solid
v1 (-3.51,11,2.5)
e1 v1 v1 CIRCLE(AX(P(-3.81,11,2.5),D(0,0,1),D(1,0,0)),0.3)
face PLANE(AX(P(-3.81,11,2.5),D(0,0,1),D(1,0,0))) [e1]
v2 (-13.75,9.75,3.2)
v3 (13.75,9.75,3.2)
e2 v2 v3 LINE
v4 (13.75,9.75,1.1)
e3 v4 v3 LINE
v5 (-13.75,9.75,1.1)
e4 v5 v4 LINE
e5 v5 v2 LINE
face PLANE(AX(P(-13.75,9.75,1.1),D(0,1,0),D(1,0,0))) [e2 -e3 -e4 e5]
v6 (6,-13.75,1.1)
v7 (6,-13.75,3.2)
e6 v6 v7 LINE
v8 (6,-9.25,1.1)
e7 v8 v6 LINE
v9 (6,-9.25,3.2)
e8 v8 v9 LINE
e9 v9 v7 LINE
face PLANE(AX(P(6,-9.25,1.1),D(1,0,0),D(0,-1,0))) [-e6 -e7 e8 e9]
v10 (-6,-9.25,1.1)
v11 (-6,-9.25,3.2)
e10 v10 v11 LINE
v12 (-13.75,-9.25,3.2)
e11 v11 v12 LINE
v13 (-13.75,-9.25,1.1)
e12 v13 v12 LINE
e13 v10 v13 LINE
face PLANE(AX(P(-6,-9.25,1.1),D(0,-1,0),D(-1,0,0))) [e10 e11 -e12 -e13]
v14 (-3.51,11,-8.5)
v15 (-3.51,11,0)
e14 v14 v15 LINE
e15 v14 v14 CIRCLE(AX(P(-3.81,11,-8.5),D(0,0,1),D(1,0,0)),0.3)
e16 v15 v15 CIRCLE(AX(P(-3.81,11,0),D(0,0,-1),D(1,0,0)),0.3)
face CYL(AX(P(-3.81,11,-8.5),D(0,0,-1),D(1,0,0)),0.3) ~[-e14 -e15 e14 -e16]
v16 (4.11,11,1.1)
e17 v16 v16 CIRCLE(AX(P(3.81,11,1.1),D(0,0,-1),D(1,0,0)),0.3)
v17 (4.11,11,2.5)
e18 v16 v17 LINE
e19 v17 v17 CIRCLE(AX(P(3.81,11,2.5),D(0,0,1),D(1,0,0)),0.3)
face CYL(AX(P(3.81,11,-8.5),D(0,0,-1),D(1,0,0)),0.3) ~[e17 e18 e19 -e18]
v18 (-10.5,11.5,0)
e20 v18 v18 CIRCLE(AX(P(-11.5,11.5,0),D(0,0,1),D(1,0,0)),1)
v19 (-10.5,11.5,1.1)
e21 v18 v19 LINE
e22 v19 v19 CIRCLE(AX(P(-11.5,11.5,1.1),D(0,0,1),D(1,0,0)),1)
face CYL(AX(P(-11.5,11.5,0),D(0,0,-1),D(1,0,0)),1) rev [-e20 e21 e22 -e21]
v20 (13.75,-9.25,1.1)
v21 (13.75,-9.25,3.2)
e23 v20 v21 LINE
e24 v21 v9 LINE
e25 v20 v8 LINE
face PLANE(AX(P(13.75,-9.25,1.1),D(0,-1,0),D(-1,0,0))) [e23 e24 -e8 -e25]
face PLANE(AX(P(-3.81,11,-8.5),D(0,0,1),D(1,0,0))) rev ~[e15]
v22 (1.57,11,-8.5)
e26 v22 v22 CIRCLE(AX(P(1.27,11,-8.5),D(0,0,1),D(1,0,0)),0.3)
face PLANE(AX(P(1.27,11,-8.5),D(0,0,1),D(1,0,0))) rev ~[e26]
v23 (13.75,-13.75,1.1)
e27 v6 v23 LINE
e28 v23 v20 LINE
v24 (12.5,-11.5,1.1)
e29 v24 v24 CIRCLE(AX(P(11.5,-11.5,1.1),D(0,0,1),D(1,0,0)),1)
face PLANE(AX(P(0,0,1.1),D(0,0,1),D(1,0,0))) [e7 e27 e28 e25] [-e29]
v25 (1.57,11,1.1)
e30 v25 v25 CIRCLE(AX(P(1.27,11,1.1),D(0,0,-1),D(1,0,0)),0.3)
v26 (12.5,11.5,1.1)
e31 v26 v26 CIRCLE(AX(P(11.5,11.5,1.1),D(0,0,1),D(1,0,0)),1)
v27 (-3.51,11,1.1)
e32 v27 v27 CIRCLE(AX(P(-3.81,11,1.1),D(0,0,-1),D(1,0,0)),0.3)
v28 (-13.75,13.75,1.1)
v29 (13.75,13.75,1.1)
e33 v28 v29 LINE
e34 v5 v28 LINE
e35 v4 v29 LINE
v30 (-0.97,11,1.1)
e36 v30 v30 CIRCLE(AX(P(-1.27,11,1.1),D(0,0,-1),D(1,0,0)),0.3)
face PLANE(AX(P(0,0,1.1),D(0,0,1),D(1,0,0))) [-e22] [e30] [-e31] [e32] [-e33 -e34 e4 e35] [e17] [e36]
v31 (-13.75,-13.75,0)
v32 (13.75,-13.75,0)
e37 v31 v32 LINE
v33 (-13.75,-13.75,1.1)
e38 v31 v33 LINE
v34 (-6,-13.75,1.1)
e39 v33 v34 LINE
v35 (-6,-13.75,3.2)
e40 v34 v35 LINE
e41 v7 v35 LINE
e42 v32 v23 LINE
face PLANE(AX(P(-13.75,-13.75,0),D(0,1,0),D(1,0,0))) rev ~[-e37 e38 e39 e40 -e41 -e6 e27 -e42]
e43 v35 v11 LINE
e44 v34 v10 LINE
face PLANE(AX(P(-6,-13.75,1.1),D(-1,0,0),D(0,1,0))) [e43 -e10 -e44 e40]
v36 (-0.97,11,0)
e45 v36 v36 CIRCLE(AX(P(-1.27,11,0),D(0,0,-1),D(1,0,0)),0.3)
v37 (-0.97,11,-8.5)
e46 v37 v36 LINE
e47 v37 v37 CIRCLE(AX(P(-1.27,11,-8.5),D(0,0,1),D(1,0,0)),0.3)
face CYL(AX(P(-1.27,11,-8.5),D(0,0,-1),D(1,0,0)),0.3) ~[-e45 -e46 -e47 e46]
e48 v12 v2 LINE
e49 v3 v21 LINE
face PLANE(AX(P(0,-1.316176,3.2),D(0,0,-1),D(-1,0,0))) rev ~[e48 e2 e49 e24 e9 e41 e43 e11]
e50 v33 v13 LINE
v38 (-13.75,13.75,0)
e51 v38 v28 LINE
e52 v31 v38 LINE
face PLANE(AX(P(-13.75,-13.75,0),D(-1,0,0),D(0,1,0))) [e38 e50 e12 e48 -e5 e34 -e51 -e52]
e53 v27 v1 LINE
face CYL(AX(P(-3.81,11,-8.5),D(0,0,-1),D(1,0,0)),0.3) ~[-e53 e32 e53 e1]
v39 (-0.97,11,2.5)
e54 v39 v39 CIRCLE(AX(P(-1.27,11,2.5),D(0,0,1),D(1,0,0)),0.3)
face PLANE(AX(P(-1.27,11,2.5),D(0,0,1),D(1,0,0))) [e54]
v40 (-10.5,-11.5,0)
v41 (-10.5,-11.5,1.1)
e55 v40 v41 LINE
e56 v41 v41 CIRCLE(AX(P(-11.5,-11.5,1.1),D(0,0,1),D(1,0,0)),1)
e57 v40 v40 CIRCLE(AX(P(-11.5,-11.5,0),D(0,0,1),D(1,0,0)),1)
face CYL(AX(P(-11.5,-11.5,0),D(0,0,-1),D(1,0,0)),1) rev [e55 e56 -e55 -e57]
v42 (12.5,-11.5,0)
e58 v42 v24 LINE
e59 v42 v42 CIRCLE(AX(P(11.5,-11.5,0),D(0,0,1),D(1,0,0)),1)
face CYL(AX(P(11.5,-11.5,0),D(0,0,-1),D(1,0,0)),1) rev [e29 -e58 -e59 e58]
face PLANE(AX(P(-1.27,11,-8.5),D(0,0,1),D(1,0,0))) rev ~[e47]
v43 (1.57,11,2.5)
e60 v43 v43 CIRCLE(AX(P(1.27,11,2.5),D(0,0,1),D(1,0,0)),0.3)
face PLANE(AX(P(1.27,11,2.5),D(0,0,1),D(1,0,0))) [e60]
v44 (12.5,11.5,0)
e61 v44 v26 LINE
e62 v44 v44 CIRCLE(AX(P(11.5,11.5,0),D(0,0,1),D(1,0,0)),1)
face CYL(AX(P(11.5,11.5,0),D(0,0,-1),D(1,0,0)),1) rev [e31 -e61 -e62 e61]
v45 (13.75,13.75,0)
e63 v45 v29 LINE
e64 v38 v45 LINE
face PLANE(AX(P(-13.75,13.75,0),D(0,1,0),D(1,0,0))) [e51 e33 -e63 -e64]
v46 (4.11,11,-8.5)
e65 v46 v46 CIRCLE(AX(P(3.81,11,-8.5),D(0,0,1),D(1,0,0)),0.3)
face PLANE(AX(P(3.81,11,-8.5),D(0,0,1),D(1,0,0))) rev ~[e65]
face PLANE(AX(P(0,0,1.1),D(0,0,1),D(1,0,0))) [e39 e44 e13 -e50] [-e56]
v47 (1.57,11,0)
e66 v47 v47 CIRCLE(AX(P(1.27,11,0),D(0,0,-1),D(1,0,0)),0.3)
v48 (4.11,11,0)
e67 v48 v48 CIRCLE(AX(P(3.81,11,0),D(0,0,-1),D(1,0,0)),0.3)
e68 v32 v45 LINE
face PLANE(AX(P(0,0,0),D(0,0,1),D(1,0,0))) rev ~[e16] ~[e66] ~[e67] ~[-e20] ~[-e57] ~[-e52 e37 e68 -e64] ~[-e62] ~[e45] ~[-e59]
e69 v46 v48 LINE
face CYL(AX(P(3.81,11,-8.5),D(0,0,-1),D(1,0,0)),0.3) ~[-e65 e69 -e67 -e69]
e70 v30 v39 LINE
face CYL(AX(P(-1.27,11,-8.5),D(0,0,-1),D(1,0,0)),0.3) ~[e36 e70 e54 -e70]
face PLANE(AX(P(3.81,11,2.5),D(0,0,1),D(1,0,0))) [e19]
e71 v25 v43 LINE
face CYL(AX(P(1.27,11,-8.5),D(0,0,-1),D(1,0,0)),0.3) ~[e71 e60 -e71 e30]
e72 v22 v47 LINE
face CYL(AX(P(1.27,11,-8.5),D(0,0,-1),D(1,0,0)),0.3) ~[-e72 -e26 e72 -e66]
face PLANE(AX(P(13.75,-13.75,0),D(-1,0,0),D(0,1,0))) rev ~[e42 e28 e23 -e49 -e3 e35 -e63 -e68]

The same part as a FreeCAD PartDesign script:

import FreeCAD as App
import Part
import Sketcher
Q = App.Units.Quantity

doc = App.newDocument("Part")
body = doc.addObject("PartDesign::Body", "Body")

sketch1 = body.newObject("Sketcher::SketchObject", "Sketch")
sketch1.AttachmentSupport = (doc.getObject("XY_Plane"), [""])
sketch1.MapMode = "FlatFace"
sketch1.AttachmentOffset = App.Placement(App.Vector(0, 0, -8.5), App.Rotation())
sketch1.addGeometry(Part.Circle(App.Vector(-3.81, 11, 0), App.Vector(0, 0, 1), 0.3), False)
sketch1.addConstraint([
    Sketcher.Constraint("Diameter", 0, Q("0.6 mm")),
    Sketcher.Constraint("DistanceY", -1, 1, 0, 3, Q("11 mm")),
    Sketcher.Constraint("DistanceX", 0, 3, -1, 1, Q("3.81 mm")),
])
pad1 = body.newObject("PartDesign::Pad", "Pad")
pad1.Profile = sketch1
pad1.Length = 11
body2 = doc.addObject("PartDesign::Body", "Body001")

sketch2 = body2.newObject("Sketcher::SketchObject", "Sketch001")
sketch2.AttachmentSupport = (doc.getObject("XY_Plane001"), [""])
sketch2.MapMode = "FlatFace"
sketch2.AttachmentOffset = App.Placement(App.Vector(0, 0, -8.5), App.Rotation())
sketch2.addGeometry(Part.Circle(App.Vector(-1.27, 11, 0), App.Vector(0, 0, 1), 0.3), False)
sketch2.addConstraint([
    Sketcher.Constraint("Diameter", 0, Q("0.6 mm")),
    Sketcher.Constraint("DistanceY", -1, 1, 0, 3, Q("11 mm")),
    Sketcher.Constraint("DistanceX", 0, 3, -1, 1, Q("1.27 mm")),
])
pad2 = body2.newObject("PartDesign::Pad", "Pad001")
pad2.Profile = sketch2
pad2.Length = 11
body3 = doc.addObject("PartDesign::Body", "Body002")

sketch3 = body3.newObject("Sketcher::SketchObject", "Sketch002")
sketch3.AttachmentSupport = (doc.getObject("XY_Plane002"), [""])
sketch3.MapMode = "FlatFace"
sketch3.AttachmentOffset = App.Placement(App.Vector(0, 0, -8.5), App.Rotation())
sketch3.addGeometry(Part.Circle(App.Vector(3.81, 11, 0), App.Vector(0, 0, 1), 0.3), False)
sketch3.addConstraint([
    Sketcher.Constraint("Diameter", 0, Q("0.6 mm")),
    Sketcher.Constraint("DistanceY", -1, 1, 0, 3, Q("11 mm")),
    Sketcher.Constraint("DistanceX", -1, 1, 0, 3, Q("3.81 mm")),
])
pad3 = body3.newObject("PartDesign::Pad", "Pad002")
pad3.Profile = sketch3
pad3.Length = 11
body4 = doc.addObject("PartDesign::Body", "Body003")

sketch4 = body4.newObject("Sketcher::SketchObject", "Sketch003")
sketch4.AttachmentSupport = (doc.getObject("XY_Plane003"), [""])
sketch4.MapMode = "FlatFace"
sketch4.AttachmentOffset = App.Placement(App.Vector(0, 0, -8.5), App.Rotation())
sketch4.addGeometry(Part.Circle(App.Vector(1.27, 11, 0), App.Vector(0, 0, 1), 0.3), False)
sketch4.addConstraint([
    Sketcher.Constraint("Diameter", 0, Q("0.6 mm")),
    Sketcher.Constraint("DistanceY", -1, 1, 0, 3, Q("11 mm")),
    Sketcher.Constraint("DistanceX", -1, 1, 0, 3, Q("1.27 mm")),
])
pad4 = body4.newObject("PartDesign::Pad", "Pad003")
pad4.Profile = sketch4
pad4.Length = 11
body5 = doc.addObject("PartDesign::Body", "Body004")

sketch5 = body5.newObject("Sketcher::SketchObject", "Sketch004")
sketch5.AttachmentSupport = (doc.getObject("XY_Plane004"), [""])
sketch5.MapMode = "FlatFace"
sketch5.addGeometry([
    Part.LineSegment(App.Vector(-13.75, 13.75, 0), App.Vector(-13.75, -13.75, 0)),
    Part.LineSegment(App.Vector(-13.75, -13.75, 0), App.Vector(13.75, -13.75, 0)),
    Part.LineSegment(App.Vector(13.75, -13.75, 0), App.Vector(13.75, 13.75, 0)),
    Part.LineSegment(App.Vector(13.75, 13.75, 0), App.Vector(-13.75, 13.75, 0)),
], False)
sketch5.addConstraint([
    Sketcher.Constraint("Coincident", 0, 2, 1, 1),
    Sketcher.Constraint("Coincident", 1, 2, 2, 1),
    Sketcher.Constraint("Coincident", 2, 2, 3, 1),
    Sketcher.Constraint("Coincident", 3, 2, 0, 1),
    Sketcher.Constraint("Vertical", 0),
    Sketcher.Constraint("Horizontal", 1),
    Sketcher.Constraint("Vertical", 2),
    Sketcher.Constraint("Horizontal", 3),
    Sketcher.Constraint("Symmetric", 0, 2, 2, 2, -1, 1),
    Sketcher.Constraint("Equal", 3, 0),
    Sketcher.Constraint("DistanceX", 1, 1, 1, 2, Q("27.5 mm")),
])
pad5 = body5.newObject("PartDesign::Pad", "Pad004")
pad5.Profile = sketch5
pad5.Length = 1.1

sketch6 = body5.newObject("Sketcher::SketchObject", "Sketch005")
sketch6.AttachmentSupport = (doc.getObject("XY_Plane004"), [""])
sketch6.MapMode = "FlatFace"
sketch6.addGeometry([
    Part.Circle(App.Vector(-11.5, 11.5, 0), App.Vector(0, 0, 1), 1),
    Part.Circle(App.Vector(11.5, 11.5, 0), App.Vector(0, 0, 1), 1),
    Part.Circle(App.Vector(11.5, -11.5, 0), App.Vector(0, 0, 1), 1),
    Part.Circle(App.Vector(-11.5, -11.5, 0), App.Vector(0, 0, 1), 1),
], False)
sketch6.addConstraint([
    Sketcher.Constraint("Equal", 0, 1),
    Sketcher.Constraint("Equal", 1, 2),
    Sketcher.Constraint("Equal", 2, 3),
    Sketcher.Constraint("Symmetric", 0, 3, 2, 3, -1, 1),
    Sketcher.Constraint("Symmetric", 1, 3, 3, 3, -1, 1),
    Sketcher.Constraint("Symmetric", 0, 3, 1, 3, -2),
    Sketcher.Constraint("Diameter", 0, Q("2 mm")),
    Sketcher.Constraint("DistanceX", 0, 3, 1, 3, Q("23 mm")),
    Sketcher.Constraint("DistanceY", 2, 3, 1, 3, Q("23 mm")),
])
pocket1 = body5.newObject("PartDesign::Pocket", "Pocket")
pocket1.Profile = sketch6
pocket1.Length = 1.1
pocket1.Reversed = True

sketch7 = body5.newObject("Sketcher::SketchObject", "Sketch006")
sketch7.AttachmentSupport = (doc.getObject("XY_Plane004"), [""])
sketch7.MapMode = "FlatFace"
sketch7.AttachmentOffset = App.Placement(App.Vector(0, 0, 1.1), App.Rotation())
sketch7.addGeometry([
    Part.LineSegment(App.Vector(13.75, 9.75, 0), App.Vector(-13.75, 9.75, 0)),
    Part.LineSegment(App.Vector(-13.75, 9.75, 0), App.Vector(-13.75, -9.25, 0)),
    Part.LineSegment(App.Vector(-13.75, -9.25, 0), App.Vector(-6, -9.25, 0)),
    Part.LineSegment(App.Vector(-6, -9.25, 0), App.Vector(-6, -13.75, 0)),
    Part.LineSegment(App.Vector(-6, -13.75, 0), App.Vector(6, -13.75, 0)),
    Part.LineSegment(App.Vector(6, -13.75, 0), App.Vector(6, -9.25, 0)),
    Part.LineSegment(App.Vector(6, -9.25, 0), App.Vector(13.75, -9.25, 0)),
    Part.LineSegment(App.Vector(13.75, -9.25, 0), App.Vector(13.75, 9.75, 0)),
], False)
sketch7.addConstraint([
    Sketcher.Constraint("Coincident", 0, 2, 1, 1),
    Sketcher.Constraint("Coincident", 1, 2, 2, 1),
    Sketcher.Constraint("Coincident", 2, 2, 3, 1),
    Sketcher.Constraint("Coincident", 3, 2, 4, 1),
    Sketcher.Constraint("Coincident", 4, 2, 5, 1),
    Sketcher.Constraint("Coincident", 5, 2, 6, 1),
    Sketcher.Constraint("Coincident", 6, 2, 7, 1),
    Sketcher.Constraint("Coincident", 7, 2, 0, 1),
    Sketcher.Constraint("Horizontal", 0),
    Sketcher.Constraint("Vertical", 1),
    Sketcher.Constraint("Horizontal", 2),
    Sketcher.Constraint("Vertical", 3),
    Sketcher.Constraint("Horizontal", 4),
    Sketcher.Constraint("Vertical", 5),
    Sketcher.Constraint("Horizontal", 6),
    Sketcher.Constraint("Vertical", 7),
    Sketcher.Constraint("Symmetric", 2, 2, 5, 2, -2),
    Sketcher.Constraint("Equal", 2, 6),
    Sketcher.Constraint("DistanceX", 4, 1, 4, 2, Q("12 mm")),
    Sketcher.Constraint("DistanceY", 1, 2, 1, 1, Q("19 mm")),
    Sketcher.Constraint("DistanceX", 0, 2, 0, 1, Q("27.5 mm")),
    Sketcher.Constraint("DistanceY", 3, 2, 3, 1, Q("4.5 mm")),
    Sketcher.Constraint("DistanceY", -1, 1, 0, 2, Q("9.75 mm")),
])
pad6 = body5.newObject("PartDesign::Pad", "Pad005")
pad6.Profile = sketch7
pad6.Length = 2.1
doc.recompute()

boolean = body5.newObject("PartDesign::Boolean", "Boolean")
boolean.Type = "Fuse"
boolean.addObjects([body])
doc.recompute()

boolean2 = body5.newObject("PartDesign::Boolean", "Boolean001")
boolean2.Type = "Fuse"
boolean2.addObjects([body2])
doc.recompute()

boolean3 = body5.newObject("PartDesign::Boolean", "Boolean002")
boolean3.Type = "Fuse"
boolean3.addObjects([body3])
doc.recompute()

boolean4 = body5.newObject("PartDesign::Boolean", "Boolean003")
boolean4.Type = "Fuse"
boolean4.addObjects([body4])

doc.recompute()
